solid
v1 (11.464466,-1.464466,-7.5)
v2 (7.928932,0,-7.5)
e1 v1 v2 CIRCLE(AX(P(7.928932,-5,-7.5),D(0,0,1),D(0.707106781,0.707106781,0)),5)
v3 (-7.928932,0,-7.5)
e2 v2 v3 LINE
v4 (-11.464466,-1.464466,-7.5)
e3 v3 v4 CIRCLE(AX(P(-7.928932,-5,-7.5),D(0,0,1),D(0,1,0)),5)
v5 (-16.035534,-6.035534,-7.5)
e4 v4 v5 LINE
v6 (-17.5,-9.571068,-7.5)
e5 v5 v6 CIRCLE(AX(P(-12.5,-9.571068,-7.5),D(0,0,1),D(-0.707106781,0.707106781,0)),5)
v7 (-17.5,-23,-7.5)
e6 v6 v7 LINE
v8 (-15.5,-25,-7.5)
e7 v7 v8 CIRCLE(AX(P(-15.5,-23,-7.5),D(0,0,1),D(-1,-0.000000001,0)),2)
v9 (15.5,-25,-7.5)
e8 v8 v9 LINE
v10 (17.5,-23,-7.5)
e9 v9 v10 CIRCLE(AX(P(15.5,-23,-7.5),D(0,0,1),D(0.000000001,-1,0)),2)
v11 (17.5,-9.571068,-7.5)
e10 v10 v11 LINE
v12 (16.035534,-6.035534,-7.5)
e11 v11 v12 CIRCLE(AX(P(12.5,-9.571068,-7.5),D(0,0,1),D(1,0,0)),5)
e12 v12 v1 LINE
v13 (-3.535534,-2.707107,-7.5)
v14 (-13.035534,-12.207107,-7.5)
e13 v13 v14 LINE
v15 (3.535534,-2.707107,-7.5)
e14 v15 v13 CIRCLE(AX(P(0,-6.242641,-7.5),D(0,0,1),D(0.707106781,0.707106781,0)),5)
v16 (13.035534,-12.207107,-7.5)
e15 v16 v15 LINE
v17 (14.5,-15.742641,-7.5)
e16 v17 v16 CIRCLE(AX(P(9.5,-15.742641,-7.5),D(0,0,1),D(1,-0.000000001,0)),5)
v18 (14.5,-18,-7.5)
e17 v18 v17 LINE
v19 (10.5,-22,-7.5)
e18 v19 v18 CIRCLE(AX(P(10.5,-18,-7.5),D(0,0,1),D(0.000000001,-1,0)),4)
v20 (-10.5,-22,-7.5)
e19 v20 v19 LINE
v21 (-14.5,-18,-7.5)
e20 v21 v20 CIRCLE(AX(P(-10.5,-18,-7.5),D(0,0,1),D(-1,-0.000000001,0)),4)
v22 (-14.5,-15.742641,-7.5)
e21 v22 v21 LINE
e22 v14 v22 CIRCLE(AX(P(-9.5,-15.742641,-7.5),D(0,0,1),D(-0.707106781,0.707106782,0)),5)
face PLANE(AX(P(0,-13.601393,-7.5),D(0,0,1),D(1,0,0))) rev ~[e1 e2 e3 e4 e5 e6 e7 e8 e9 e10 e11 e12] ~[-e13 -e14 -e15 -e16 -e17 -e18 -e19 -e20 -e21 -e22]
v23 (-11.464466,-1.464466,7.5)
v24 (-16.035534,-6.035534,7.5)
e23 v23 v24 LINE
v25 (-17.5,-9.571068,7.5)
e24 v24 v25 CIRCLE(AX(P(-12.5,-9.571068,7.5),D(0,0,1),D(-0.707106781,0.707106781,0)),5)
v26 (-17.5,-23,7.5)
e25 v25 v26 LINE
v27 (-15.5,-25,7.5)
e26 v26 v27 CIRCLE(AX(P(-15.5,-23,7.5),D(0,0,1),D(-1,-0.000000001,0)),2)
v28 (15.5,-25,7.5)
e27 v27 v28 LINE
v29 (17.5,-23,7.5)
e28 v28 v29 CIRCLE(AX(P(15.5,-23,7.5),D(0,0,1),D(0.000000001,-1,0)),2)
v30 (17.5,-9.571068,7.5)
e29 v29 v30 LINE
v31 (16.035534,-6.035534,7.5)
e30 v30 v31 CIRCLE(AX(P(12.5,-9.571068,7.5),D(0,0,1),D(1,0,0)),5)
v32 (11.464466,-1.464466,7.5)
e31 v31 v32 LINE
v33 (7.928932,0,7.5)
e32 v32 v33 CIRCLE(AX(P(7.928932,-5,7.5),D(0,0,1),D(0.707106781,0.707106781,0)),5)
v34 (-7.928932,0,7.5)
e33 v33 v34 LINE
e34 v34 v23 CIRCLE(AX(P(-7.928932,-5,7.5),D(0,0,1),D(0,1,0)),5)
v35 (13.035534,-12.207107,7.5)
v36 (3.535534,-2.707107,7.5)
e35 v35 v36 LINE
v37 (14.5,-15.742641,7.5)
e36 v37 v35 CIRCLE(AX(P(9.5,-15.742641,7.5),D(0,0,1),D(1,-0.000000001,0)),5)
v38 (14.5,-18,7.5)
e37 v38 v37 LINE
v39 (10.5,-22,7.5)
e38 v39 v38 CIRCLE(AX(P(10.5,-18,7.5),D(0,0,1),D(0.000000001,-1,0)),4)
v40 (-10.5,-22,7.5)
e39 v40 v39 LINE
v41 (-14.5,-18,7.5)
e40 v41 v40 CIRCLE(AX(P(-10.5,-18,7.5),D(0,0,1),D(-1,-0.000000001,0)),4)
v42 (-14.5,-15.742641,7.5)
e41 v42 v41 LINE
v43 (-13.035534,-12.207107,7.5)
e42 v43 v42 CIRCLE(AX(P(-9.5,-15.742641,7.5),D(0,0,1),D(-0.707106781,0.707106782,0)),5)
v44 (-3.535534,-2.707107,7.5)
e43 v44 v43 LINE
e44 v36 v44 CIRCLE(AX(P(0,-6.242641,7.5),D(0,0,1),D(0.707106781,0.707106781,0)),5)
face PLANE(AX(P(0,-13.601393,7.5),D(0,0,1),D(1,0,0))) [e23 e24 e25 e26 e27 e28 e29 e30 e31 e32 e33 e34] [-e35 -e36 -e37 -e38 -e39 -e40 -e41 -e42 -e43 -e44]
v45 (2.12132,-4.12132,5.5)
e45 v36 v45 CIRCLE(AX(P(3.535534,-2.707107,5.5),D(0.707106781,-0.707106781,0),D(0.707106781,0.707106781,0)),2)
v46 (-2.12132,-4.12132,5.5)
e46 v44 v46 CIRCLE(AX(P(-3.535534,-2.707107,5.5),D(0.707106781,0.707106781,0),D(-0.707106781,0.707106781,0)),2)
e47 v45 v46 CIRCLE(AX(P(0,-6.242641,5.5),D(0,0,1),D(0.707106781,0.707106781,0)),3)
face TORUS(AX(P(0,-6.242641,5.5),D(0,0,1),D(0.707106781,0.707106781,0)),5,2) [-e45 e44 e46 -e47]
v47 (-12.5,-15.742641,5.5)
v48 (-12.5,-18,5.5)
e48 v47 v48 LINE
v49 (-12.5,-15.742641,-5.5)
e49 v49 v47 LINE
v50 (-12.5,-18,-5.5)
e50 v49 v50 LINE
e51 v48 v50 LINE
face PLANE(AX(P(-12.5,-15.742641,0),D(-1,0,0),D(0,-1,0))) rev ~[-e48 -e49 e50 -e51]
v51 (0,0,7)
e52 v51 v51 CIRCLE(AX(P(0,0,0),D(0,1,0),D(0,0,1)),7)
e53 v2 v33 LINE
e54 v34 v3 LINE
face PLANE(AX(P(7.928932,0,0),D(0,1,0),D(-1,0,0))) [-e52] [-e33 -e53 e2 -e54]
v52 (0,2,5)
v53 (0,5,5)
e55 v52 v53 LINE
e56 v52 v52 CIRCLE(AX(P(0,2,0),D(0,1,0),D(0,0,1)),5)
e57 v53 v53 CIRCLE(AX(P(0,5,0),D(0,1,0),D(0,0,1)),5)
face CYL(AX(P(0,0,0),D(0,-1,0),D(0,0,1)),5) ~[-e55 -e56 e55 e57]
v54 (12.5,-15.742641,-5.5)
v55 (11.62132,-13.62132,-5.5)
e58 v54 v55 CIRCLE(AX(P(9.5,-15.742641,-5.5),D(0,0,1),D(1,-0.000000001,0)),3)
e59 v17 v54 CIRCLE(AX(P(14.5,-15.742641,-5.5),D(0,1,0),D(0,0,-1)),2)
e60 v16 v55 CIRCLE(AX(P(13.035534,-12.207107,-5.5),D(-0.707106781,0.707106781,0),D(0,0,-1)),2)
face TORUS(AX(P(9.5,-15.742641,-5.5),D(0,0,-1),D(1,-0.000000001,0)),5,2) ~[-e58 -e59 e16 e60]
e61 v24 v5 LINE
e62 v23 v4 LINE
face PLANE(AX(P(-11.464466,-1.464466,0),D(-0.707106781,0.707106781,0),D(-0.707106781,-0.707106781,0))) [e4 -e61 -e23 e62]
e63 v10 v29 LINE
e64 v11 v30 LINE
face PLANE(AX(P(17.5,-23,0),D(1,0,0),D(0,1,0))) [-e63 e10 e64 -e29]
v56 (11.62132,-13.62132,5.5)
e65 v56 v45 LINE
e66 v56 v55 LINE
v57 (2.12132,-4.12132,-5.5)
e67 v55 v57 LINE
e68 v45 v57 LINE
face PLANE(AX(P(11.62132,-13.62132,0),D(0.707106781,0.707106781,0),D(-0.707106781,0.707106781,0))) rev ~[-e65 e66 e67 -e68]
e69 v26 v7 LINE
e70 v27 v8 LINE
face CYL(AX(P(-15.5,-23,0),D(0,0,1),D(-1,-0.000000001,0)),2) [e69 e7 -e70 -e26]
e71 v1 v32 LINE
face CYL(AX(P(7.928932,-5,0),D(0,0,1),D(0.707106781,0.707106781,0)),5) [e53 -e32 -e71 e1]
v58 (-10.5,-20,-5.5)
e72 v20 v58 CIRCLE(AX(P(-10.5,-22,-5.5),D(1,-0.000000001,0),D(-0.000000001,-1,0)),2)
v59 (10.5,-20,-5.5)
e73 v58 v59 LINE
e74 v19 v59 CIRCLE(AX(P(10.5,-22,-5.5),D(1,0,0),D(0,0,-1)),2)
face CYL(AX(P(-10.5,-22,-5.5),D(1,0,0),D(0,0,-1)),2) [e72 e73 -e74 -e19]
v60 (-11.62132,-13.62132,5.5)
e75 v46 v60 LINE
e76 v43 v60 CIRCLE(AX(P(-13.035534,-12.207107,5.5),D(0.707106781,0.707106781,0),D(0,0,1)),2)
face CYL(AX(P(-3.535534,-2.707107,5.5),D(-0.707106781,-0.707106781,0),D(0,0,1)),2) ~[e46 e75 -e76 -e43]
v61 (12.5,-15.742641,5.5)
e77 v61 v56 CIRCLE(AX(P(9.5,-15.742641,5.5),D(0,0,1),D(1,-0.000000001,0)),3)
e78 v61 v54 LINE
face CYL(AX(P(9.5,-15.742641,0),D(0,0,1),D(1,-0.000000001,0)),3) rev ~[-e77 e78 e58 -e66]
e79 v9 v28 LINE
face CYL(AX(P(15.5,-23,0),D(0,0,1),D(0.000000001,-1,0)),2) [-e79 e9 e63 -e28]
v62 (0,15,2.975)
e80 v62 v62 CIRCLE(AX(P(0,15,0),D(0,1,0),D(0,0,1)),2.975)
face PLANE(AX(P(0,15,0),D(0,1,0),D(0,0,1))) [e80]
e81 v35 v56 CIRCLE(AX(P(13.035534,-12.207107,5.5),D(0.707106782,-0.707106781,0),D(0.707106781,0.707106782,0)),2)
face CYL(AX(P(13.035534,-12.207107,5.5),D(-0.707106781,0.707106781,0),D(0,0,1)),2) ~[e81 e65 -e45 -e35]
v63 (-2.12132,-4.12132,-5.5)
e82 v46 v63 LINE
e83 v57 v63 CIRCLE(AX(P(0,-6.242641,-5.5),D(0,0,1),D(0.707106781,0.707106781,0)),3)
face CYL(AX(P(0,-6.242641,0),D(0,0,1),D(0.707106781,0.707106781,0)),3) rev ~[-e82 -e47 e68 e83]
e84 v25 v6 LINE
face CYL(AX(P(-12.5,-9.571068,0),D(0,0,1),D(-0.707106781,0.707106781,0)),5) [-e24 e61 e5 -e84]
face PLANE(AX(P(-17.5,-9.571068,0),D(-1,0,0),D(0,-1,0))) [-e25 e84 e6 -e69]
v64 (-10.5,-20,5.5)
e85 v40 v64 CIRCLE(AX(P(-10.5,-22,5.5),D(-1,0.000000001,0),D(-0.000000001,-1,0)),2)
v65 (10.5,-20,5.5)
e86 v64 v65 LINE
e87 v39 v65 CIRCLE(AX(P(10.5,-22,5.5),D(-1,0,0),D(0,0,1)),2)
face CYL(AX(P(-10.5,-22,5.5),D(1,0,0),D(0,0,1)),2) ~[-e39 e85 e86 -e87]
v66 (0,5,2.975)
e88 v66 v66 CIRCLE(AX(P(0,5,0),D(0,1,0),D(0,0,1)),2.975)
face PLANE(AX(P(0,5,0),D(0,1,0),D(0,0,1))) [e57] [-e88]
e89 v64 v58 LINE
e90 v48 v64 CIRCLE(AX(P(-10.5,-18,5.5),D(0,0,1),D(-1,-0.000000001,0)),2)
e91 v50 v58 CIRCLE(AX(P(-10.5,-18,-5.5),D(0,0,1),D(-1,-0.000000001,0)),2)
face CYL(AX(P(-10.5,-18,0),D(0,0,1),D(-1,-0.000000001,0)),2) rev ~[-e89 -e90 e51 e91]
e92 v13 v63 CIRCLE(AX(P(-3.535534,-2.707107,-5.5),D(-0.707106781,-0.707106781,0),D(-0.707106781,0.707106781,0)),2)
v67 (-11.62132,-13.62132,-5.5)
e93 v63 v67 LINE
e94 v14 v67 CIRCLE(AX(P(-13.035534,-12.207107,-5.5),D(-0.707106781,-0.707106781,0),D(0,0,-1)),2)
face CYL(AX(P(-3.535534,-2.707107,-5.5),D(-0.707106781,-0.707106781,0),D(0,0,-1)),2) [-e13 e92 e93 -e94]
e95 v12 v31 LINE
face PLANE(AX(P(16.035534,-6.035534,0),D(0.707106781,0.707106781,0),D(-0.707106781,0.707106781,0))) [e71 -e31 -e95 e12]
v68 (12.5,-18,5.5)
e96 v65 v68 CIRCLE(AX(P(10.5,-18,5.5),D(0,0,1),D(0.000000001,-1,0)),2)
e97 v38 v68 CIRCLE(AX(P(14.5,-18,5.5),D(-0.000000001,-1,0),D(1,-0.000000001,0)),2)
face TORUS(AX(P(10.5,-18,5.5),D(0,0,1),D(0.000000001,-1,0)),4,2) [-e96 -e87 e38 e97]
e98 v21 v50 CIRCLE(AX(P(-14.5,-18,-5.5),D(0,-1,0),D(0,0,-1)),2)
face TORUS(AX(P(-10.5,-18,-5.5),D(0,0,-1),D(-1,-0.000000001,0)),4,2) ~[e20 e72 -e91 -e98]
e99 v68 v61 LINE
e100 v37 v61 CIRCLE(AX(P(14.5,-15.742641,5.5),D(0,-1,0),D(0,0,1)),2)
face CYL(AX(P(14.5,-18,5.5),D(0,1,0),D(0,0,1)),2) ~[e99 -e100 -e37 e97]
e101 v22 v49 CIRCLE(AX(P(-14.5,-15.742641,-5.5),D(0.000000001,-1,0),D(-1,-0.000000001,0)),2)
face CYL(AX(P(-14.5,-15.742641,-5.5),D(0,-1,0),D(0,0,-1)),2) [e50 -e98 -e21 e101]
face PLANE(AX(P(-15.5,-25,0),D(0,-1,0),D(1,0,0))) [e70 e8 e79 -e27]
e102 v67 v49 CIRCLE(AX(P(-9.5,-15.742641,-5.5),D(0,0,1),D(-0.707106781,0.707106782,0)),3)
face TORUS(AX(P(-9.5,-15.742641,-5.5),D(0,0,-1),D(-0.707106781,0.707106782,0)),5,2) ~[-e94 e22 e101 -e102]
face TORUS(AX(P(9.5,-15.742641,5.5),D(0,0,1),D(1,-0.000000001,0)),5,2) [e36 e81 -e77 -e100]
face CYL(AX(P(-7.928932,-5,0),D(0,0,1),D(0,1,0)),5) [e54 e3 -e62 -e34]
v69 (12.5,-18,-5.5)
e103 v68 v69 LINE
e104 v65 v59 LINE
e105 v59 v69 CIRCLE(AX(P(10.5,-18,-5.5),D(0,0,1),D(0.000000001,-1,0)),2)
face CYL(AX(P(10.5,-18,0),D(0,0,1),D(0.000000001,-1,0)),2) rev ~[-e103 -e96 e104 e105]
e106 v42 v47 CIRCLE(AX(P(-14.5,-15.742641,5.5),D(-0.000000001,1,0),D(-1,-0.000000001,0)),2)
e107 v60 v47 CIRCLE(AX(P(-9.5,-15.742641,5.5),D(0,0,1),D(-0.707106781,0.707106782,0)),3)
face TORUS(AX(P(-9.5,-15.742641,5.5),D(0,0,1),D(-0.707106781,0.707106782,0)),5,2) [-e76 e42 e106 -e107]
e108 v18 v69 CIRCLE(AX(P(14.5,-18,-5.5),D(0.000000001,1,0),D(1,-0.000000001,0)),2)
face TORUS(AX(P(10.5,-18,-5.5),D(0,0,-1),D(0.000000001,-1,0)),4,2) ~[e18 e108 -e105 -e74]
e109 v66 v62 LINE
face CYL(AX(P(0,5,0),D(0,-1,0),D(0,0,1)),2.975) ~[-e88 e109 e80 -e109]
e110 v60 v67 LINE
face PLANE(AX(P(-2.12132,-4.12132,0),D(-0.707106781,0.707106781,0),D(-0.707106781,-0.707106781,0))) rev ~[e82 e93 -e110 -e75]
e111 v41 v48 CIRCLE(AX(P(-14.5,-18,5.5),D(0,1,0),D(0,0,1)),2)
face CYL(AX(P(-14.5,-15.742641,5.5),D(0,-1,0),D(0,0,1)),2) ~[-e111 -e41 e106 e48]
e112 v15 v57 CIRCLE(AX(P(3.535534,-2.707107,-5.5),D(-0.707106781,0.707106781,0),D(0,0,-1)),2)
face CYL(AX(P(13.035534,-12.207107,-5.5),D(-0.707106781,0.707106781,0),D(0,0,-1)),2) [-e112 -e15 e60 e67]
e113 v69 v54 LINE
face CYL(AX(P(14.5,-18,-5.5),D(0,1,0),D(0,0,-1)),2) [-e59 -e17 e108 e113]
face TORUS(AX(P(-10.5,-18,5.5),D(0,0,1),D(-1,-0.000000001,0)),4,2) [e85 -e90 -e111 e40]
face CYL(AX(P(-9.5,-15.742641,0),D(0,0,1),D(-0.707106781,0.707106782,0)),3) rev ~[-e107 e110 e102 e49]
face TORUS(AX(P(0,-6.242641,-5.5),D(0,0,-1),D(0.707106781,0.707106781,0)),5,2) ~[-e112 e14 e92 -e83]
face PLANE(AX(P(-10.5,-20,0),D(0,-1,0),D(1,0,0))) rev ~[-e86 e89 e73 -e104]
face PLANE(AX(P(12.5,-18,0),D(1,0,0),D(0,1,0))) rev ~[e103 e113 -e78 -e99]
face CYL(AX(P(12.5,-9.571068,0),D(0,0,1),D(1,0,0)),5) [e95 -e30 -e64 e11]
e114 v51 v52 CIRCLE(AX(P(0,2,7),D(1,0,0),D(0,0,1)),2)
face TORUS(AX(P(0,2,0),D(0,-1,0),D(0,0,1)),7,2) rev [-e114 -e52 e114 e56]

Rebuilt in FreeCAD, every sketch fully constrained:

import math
import FreeCAD as App
import Part
import Sketcher


def edges_at(feature, points):
    """Names of the edges that pass closest to the given points."""
    edges = feature.Shape.Edges
    near = lambda p: min(range(len(edges)), key=lambda i: edges[i].distToShape(Part.Vertex(*p))[0])
    return sorted({f"Edge{near(p) + 1}" for p in points})

doc = App.newDocument("Part")
body = doc.addObject("PartDesign::Body", "Body")

# Sketch on XZ plane
sketch1 = doc.addObject("Sketcher::SketchObject", "Sketch")
body.addObject(sketch1)
sketch1.AttachmentSupport = (doc.XZ_Plane, [""])
sketch1.MapMode = "FlatFace"
sketch1.addGeometry(Part.Circle(App.Vector(0, 0, 0), App.Vector(0, 0, 1), 5), False)
sketch1.addConstraint([
    Sketcher.Constraint("Coincident", 0, 3, -1, 1),
    Sketcher.Constraint("Diameter", 0, 10.0),
])
pad1 = doc.addObject("PartDesign::Pad", "Pad")
body.addObject(pad1)
pad1.Profile = sketch1
pad1.Length = 5
pad1.Reversed = True

# Sketch on XZ plane
sketch2 = doc.addObject("Sketcher::SketchObject", "Sketch001")
body.addObject(sketch2)
sketch2.AttachmentSupport = (doc.XZ_Plane, [""])
sketch2.MapMode = "FlatFace"
sketch2.AttachmentOffset = App.Placement(App.Vector(0, 0, -5), App.Rotation())
sketch2.addGeometry(Part.Circle(App.Vector(0, 0, 0), App.Vector(0, 0, 1), 3), False)
sketch2.addConstraint([
    Sketcher.Constraint("Coincident", 0, 3, -1, 1),
    Sketcher.Constraint("Diameter", 0, 5.95),
])
pad2 = doc.addObject("PartDesign::Pad", "Pad001")
body.addObject(pad2)
pad2.Profile = sketch2
pad2.Length = 10
pad2.Reversed = True

# Sketch on XY plane
sketch3 = doc.addObject("Sketcher::SketchObject", "Sketch002")
body.addObject(sketch3)
sketch3.AttachmentSupport = (doc.XY_Plane, [""])
sketch3.MapMode = "FlatFace"
sketch3.addGeometry([
    Part.LineSegment(App.Vector(-15.5, -25, 0), App.Vector(15.5, -25, 0)),  # 0
    Part.ArcOfCircle(Part.Circle(App.Vector(15.5, -23, 0), App.Vector(0, 0, 1), 2), math.radians(-90), math.radians(0)),  # 1
    Part.LineSegment(App.Vector(17.5, -23, 0), App.Vector(17.5, -9.6, 0)),  # 2
    Part.ArcOfCircle(Part.Circle(App.Vector(12.5, -9.6, 0), App.Vector(0, 0, 1), 5), math.radians(0), math.radians(45)),  # 3
    Part.LineSegment(App.Vector(16, -6, 0), App.Vector(11.5, -1.5, 0)),  # 4
    Part.ArcOfCircle(Part.Circle(App.Vector(7.9, -5, 0), App.Vector(0, 0, 1), 5), math.radians(45), math.radians(90)),  # 5
    Part.LineSegment(App.Vector(7.9, 0, 0), App.Vector(-7.9, 0, 0)),  # 6
    Part.ArcOfCircle(Part.Circle(App.Vector(-7.9, -5, 0), App.Vector(0, 0, 1), 5), math.radians(90), math.radians(135)),  # 7
    Part.LineSegment(App.Vector(-11.5, -1.5, 0), App.Vector(-16, -6, 0)),  # 8
    Part.ArcOfCircle(Part.Circle(App.Vector(-12.5, -9.6, 0), App.Vector(0, 0, 1), 5), math.radians(135), math.radians(180)),  # 9
    Part.LineSegment(App.Vector(-17.5, -9.6, 0), App.Vector(-17.5, -23, 0)),  # 10
    Part.ArcOfCircle(Part.Circle(App.Vector(-15.5, -23, 0), App.Vector(0, 0, 1), 2), math.radians(-180), math.radians(-90)),  # 11
    Part.LineSegment(App.Vector(-12.5, -18, 0), App.Vector(-12.5, -15.7, 0)),  # 12
    Part.ArcOfCircle(Part.Circle(App.Vector(-9.5, -15.7, 0), App.Vector(0, 0, 1), 3), math.radians(135), math.radians(180)),  # 13
    Part.LineSegment(App.Vector(-11.6, -13.6, 0), App.Vector(-2.1, -4.1, 0)),  # 14
    Part.ArcOfCircle(Part.Circle(App.Vector(0, -6.2, 0), App.Vector(0, 0, 1), 3), math.radians(45), math.radians(135)),  # 15
    Part.LineSegment(App.Vector(2.1, -4.1, 0), App.Vector(11.6, -13.6, 0)),  # 16
    Part.ArcOfCircle(Part.Circle(App.Vector(9.5, -15.7, 0), App.Vector(0, 0, 1), 3), math.radians(0), math.radians(45)),  # 17
    Part.LineSegment(App.Vector(12.5, -15.7, 0), App.Vector(12.5, -18, 0)),  # 18
    Part.ArcOfCircle(Part.Circle(App.Vector(10.5, -18, 0), App.Vector(0, 0, 1), 2), math.radians(-90), math.radians(0)),  # 19
    Part.LineSegment(App.Vector(10.5, -20, 0), App.Vector(-10.5, -20, 0)),  # 20
    Part.ArcOfCircle(Part.Circle(App.Vector(-10.5, -18, 0), App.Vector(0, 0, 1), 2), math.radians(-180), math.radians(-90)),  # 21
], False)
sketch3.addConstraint([
    Sketcher.Constraint("Tangent", 0, 2, 1, 1),
    Sketcher.Constraint("Tangent", 1, 2, 2, 1),
    Sketcher.Constraint("Tangent", 2, 2, 3, 1),
    Sketcher.Constraint("Tangent", 3, 2, 4, 1),
    Sketcher.Constraint("Tangent", 4, 2, 5, 1),
    Sketcher.Constraint("Tangent", 5, 2, 6, 1),
    Sketcher.Constraint("Tangent", 6, 2, 7, 1),
    Sketcher.Constraint("Tangent", 7, 2, 8, 1),
    Sketcher.Constraint("Tangent", 8, 2, 9, 1),
    Sketcher.Constraint("Tangent", 9, 2, 10, 1),
    Sketcher.Constraint("Tangent", 10, 2, 11, 1),
    Sketcher.Constraint("Tangent", 11, 2, 0, 1),
    Sketcher.Constraint("Tangent", 12, 2, 13, 2),
    Sketcher.Constraint("Tangent", 13, 1, 14, 1),
    Sketcher.Constraint("Tangent", 14, 2, 15, 2),
    Sketcher.Constraint("Tangent", 15, 1, 16, 1),
    Sketcher.Constraint("Tangent", 16, 2, 17, 2),
    Sketcher.Constraint("Tangent", 17, 1, 18, 1),
    Sketcher.Constraint("Tangent", 18, 2, 19, 2),
    Sketcher.Constraint("Tangent", 19, 1, 20, 1),
    Sketcher.Constraint("Tangent", 20, 2, 21, 2),
    Sketcher.Constraint("Tangent", 21, 1, 12, 1),
    Sketcher.Constraint("Horizontal", 0),
    Sketcher.Constraint("Vertical", 2),
    Sketcher.Constraint("Horizontal", 6),
    Sketcher.Constraint("Vertical", 10),
    Sketcher.Constraint("Vertical", 12),
    Sketcher.Constraint("Vertical", 18),
    Sketcher.Constraint("Horizontal", 20),
    Sketcher.Constraint("Equal", 3, 5),
    Sketcher.Constraint("Equal", 5, 7),
    Sketcher.Constraint("Equal", 7, 9),
    Sketcher.Constraint("Equal", 1, 11),
    Sketcher.Constraint("Equal", 13, 15),
    Sketcher.Constraint("Equal", 15, 17),
    Sketcher.Constraint("Equal", 11, 19),
    Sketcher.Constraint("Equal", 19, 21),
    Sketcher.Constraint("Symmetric", 5, 2, 6, 2, -1, 1),
    Sketcher.Constraint("Symmetric", 3, 3, 9, 3, -2),
    Sketcher.Constraint("Symmetric", 13, 3, 17, 3, -2),
    Sketcher.Constraint("PointOnObject", 15, 3, -2),
    Sketcher.Constraint("Perpendicular", 4, 8),
    Sketcher.Constraint("Parallel", 8, 14),
    Sketcher.Constraint("Vertical", 9, 3, 12, 2),
    Sketcher.Constraint("Radius", 1, 2.0),
    Sketcher.Constraint("Radius", 3, 5.0),
    Sketcher.Constraint("Radius", 13, 3.0),
    Sketcher.Constraint("DistanceX", 0, 1, 0, 2, 31.0),
    Sketcher.Constraint("DistanceY", 1, 3, -1, 1, 23.0),
    Sketcher.Constraint("DistanceY", 19, 3, -1, 1, 18.0),
    Sketcher.Constraint("DistanceY", 12, 1, 12, 2, 2.257359),
    Sketcher.Constraint("DistanceX", 5, 3, 3, 2, 8.106602),
])
pad3 = doc.addObject("PartDesign::Pad", "Pad002")
body.addObject(pad3)
pad3.Profile = sketch3
pad3.Length = 15
pad3.Midplane = True
doc.recompute()

fillet = doc.addObject("PartDesign::Fillet", "Fillet")
body.addObject(fillet)
fillet.Base = (pad3, edges_at(pad3, [(0, 0, -5)]))
fillet.Radius = 2
doc.recompute()

fillet2 = doc.addObject("PartDesign::Fillet", "Fillet001")
body.addObject(fillet2)
fillet2.Base = (fillet, edges_at(fillet, [
    (6.871, -8.871, -7.5),
    (0, -3.243, -7.5),
    (-6.871, -8.871, -7.5),
    (-12.272, -14.595, -7.5),
    (-12.5, -16.871, -7.5),
    (-11.914, -19.414, -7.5),
    (0, -20, -7.5),
    (11.914, -19.414, -7.5),
    (12.5, -16.871, -7.5),
    (12.272, -14.595, -7.5),
    (0, -3.243, 7.5),
    (-6.871, -8.871, 7.5),
    (-12.272, -14.595, 7.5),
    (-12.5, -16.871, 7.5),
    (-11.914, -19.414, 7.5),
    (0, -20, 7.5),
    (11.914, -19.414, 7.5),
    (12.5, -16.871, 7.5),
    (12.272, -14.595, 7.5),
    (6.871, -8.871, 7.5),
]))
fillet2.Radius = 2

doc.recompute()
